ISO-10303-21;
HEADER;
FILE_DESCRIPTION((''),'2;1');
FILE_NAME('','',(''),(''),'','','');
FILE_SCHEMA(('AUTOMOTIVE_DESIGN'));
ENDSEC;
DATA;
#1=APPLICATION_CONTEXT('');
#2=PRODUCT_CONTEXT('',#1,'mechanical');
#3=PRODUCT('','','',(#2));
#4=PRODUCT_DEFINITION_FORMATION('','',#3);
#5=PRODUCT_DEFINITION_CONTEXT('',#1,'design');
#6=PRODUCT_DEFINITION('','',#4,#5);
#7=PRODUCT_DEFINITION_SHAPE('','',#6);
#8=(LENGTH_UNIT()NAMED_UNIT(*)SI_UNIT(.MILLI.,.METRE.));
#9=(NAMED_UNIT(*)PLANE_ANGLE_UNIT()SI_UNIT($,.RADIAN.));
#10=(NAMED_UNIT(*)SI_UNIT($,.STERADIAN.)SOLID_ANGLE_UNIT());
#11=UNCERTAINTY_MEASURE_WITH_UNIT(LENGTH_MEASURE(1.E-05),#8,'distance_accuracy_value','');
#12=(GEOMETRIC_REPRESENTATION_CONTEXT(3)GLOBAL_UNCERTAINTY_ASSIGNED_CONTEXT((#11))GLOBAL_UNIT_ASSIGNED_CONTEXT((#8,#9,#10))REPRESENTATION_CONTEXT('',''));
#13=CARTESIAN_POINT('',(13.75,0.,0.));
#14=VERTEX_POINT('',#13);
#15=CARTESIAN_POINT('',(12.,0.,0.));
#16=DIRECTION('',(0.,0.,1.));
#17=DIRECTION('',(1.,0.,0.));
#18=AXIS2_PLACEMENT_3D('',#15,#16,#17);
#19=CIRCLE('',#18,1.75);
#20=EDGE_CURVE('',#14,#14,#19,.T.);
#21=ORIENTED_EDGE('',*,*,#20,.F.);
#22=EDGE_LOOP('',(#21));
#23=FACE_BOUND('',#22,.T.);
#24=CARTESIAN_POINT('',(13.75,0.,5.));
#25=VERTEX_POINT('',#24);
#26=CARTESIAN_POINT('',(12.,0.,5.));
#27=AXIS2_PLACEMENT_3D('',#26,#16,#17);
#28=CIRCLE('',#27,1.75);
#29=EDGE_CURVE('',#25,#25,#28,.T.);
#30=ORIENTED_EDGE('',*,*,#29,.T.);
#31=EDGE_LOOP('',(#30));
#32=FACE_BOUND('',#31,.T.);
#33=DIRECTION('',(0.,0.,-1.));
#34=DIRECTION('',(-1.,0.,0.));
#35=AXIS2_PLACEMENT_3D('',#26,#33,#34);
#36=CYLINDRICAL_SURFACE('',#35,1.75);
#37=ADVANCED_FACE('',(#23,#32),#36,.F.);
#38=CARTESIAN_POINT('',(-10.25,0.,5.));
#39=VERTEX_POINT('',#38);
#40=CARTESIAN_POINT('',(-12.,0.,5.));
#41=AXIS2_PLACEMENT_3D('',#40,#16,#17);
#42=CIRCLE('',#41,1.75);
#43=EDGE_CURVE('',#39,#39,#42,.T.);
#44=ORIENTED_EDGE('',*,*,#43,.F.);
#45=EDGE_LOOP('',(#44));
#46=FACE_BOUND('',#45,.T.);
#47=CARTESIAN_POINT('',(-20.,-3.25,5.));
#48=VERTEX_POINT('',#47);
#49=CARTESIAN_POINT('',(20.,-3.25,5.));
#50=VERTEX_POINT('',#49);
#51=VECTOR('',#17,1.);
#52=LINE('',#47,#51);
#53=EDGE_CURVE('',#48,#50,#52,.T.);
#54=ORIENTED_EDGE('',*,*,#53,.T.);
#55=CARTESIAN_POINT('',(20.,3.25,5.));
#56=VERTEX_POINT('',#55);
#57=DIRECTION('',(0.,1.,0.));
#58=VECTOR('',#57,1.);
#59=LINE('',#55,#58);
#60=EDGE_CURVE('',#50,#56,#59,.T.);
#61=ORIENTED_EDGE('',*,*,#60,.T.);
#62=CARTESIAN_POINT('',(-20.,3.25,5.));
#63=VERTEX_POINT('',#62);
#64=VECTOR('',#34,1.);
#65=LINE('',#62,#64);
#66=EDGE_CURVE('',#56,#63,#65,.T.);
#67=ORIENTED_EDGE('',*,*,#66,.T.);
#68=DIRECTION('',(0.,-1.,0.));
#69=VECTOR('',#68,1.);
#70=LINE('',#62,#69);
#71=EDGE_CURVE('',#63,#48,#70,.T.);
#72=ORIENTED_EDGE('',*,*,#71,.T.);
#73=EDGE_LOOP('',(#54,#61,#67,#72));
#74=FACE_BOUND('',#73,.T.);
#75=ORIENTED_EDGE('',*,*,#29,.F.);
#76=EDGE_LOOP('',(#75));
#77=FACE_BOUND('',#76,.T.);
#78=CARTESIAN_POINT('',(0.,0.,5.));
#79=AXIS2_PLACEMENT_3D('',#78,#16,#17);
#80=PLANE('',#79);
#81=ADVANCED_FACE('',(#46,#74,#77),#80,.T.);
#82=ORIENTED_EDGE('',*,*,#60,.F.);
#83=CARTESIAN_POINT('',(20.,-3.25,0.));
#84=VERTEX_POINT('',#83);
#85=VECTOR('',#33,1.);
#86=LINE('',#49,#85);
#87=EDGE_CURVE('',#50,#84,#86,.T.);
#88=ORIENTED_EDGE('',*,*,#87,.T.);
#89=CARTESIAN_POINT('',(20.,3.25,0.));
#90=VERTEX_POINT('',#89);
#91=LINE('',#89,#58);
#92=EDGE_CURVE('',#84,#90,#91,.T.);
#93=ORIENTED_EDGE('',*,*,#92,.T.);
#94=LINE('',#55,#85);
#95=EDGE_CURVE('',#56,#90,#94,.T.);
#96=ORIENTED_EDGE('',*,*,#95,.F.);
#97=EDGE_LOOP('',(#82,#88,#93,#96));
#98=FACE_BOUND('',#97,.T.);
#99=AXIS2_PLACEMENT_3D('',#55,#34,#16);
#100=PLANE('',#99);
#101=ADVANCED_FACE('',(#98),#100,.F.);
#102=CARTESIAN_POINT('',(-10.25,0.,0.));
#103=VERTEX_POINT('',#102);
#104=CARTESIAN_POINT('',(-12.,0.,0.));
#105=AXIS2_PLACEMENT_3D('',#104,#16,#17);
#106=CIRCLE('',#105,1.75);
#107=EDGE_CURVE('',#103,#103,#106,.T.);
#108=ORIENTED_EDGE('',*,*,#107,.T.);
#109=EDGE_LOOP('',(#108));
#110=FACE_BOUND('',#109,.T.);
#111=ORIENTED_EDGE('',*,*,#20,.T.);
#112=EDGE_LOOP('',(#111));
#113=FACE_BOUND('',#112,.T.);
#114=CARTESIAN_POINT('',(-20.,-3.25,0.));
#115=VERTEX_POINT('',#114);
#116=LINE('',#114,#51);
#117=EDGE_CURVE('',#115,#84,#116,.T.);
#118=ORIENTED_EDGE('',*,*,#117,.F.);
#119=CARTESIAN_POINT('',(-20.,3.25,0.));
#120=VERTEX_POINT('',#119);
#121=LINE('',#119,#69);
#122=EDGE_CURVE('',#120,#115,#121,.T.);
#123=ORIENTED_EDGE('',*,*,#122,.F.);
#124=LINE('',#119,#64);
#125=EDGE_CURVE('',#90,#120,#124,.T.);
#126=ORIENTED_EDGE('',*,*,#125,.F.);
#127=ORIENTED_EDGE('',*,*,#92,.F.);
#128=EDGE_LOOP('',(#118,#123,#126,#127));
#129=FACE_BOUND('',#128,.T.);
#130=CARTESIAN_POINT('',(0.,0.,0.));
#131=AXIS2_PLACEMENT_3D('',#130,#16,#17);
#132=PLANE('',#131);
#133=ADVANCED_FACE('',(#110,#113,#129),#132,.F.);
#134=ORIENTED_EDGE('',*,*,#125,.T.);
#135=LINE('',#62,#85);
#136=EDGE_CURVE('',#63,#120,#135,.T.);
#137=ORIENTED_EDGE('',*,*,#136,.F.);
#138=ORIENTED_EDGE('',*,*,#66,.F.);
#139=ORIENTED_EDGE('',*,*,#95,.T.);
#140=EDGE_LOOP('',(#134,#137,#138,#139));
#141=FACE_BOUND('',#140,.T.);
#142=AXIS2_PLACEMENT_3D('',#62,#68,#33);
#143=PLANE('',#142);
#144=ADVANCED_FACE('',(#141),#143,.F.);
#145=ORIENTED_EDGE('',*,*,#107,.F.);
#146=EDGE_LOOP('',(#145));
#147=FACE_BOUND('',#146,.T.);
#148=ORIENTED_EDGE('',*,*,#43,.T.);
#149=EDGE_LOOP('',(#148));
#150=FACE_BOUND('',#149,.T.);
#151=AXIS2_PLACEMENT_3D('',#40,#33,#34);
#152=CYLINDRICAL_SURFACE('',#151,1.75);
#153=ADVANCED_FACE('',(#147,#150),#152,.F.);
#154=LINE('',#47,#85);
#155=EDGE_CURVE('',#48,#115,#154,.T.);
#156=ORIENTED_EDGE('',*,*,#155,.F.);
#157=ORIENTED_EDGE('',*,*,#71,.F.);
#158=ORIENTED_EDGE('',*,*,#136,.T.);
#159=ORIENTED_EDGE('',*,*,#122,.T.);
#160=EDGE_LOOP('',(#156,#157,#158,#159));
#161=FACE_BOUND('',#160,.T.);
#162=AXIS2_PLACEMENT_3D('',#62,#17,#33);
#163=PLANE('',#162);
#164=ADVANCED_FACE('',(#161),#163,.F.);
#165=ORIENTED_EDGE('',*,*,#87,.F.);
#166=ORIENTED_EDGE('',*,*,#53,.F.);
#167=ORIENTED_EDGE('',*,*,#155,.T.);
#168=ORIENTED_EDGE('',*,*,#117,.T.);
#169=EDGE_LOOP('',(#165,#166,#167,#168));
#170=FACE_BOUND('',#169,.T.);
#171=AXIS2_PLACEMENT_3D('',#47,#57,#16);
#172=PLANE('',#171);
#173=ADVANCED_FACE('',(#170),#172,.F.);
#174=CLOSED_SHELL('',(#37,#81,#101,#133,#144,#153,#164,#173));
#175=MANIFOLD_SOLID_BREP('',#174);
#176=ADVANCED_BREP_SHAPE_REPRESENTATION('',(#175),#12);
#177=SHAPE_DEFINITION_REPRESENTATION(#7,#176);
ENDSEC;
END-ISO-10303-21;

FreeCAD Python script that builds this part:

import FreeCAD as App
import Part
import Sketcher


def add_polygon(sketch, points):
    """Adds a closed chain of lines whose ends are joined by coincident constraints."""
    first, n = sketch.GeometryCount, len(points)
    for a, b in zip(points, points[1:] + points[:1]):
        sketch.addGeometry(Part.LineSegment(App.Vector(*a, 0), App.Vector(*b, 0)), False)
    for i in range(n):
        sketch.addConstraint(Sketcher.Constraint("Coincident", first + i, 2, first + (i + 1) % n, 1))

doc = App.newDocument("Part")
params = doc.addObject("Spreadsheet::Sheet", "Params")
for row, (alias, value) in enumerate([
    ("sketch1_diameter", "3.5 mm"),
    ("sketch1_width", "40 mm"),
    ("sketch1_height", "6.5 mm"),
    ("pad1_length", "5 mm"),
], start=1):
    params.set(f"A{row}", alias)
    params.set(f"B{row}", "=" + value)
    params.setAlias(f"B{row}", alias)

body = doc.addObject("PartDesign::Body", "Body")

sketch1 = body.newObject("Sketcher::SketchObject", "Sketch")
sketch1.AttachmentSupport = (doc.getObject("XY_Plane"), [""])
sketch1.MapMode = "FlatFace"
add_polygon(sketch1, [(-20, 3.2), (-20, -3.2), (20, -3.2), (20, 3.2)])
sketch1.addGeometry(Part.Circle(App.Vector(-12, 0, 0), App.Vector(0, 0, 1), 1.8), False)
sketch1.addGeometry(Part.Circle(App.Vector(12, 0, 0), App.Vector(0, 0, 1), 1.8), False)
sketch1.addConstraint([
    Sketcher.Constraint("Vertical", 0),
    Sketcher.Constraint("Horizontal", 1),
    Sketcher.Constraint("Vertical", 2),
    Sketcher.Constraint("Horizontal", 3),
    Sketcher.Constraint("Equal", 4, 5),
    Sketcher.Constraint("Symmetric", 4, 3, 5, 3, -1, 1),
    Sketcher.Constraint("Symmetric", 0, 2, 2, 2, -1, 1),
    Sketcher.Constraint("PointOnObject", 4, 3, -1),
    Sketcher.Constraint("Diameter", 4, 3.5),
    Sketcher.Constraint("DistanceX", 1, 1, 1, 2, 40.0),
    Sketcher.Constraint("DistanceY", 0, 2, 0, 1, 6.5),
    Sketcher.Constraint("DistanceX", 4, 3, -1, 1, 12.0),
])
sketch1.setExpression("Constraints[12]", "Params.sketch1_diameter")
sketch1.setExpression("Constraints[13]", "Params.sketch1_width")
sketch1.setExpression("Constraints[14]", "Params.sketch1_height")
pad1 = body.newObject("PartDesign::Pad", "Pad")
pad1.Profile = sketch1
pad1.setExpression("Length", "Params.pad1_length")

doc.recompute()
